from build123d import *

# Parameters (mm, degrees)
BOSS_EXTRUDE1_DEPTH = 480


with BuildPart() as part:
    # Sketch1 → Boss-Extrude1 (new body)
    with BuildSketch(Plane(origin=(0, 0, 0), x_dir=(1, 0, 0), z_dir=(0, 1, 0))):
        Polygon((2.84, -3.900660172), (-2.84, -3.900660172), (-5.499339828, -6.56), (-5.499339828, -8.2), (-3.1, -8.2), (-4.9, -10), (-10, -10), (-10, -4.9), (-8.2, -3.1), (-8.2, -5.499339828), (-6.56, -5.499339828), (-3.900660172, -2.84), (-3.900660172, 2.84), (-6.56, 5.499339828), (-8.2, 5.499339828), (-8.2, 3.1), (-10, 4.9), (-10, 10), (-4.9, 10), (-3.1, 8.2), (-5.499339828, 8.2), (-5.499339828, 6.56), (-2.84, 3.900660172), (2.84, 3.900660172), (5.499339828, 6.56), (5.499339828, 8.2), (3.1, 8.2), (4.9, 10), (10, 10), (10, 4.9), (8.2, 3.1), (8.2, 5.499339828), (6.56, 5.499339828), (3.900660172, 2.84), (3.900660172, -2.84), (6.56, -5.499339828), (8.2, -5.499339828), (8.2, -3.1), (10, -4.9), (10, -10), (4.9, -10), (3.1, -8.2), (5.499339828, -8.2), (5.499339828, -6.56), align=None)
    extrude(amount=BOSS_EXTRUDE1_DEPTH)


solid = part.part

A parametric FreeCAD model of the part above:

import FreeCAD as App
import Part
import Sketcher

doc = App.newDocument("Part")
body = doc.addObject("PartDesign::Body", "Body")

# Sketch on XZ plane
sketch1 = body.newObject("Sketcher::SketchObject", "Sketch")
sketch1.AttachmentSupport = (doc.getObject("XZ_Plane"), [""])
sketch1.MapMode = "FlatFace"
sketch1.addGeometry(Part.LineSegment(App.Vector(-2.8, 3.9, 0), App.Vector(2.8, 3.9, 0)), False)
sketch1.addGeometry(Part.LineSegment(App.Vector(2.8, 3.9, 0), App.Vector(5.5, 6.6, 0)), False)
sketch1.addGeometry(Part.LineSegment(App.Vector(5.5, 6.6, 0), App.Vector(5.5, 8.2, 0)), False)
sketch1.addGeometry(Part.LineSegment(App.Vector(5.5, 8.2, 0), App.Vector(3.1, 8.2, 0)), False)
sketch1.addGeometry(Part.LineSegment(App.Vector(3.1, 8.2, 0), App.Vector(4.9, 10, 0)), False)
sketch1.addGeometry(Part.LineSegment(App.Vector(4.9, 10, 0), App.Vector(10, 10, 0)), False)
sketch1.addGeometry(Part.LineSegment(App.Vector(10, 10, 0), App.Vector(10, 4.9, 0)), False)
sketch1.addGeometry(Part.LineSegment(App.Vector(10, 4.9, 0), App.Vector(8.2, 3.1, 0)), False)
sketch1.addGeometry(Part.LineSegment(App.Vector(8.2, 3.1, 0), App.Vector(8.2, 5.5, 0)), False)
sketch1.addGeometry(Part.LineSegment(App.Vector(8.2, 5.5, 0), App.Vector(6.6, 5.5, 0)), False)
sketch1.addGeometry(Part.LineSegment(App.Vector(6.6, 5.5, 0), App.Vector(3.9, 2.8, 0)), False)
sketch1.addGeometry(Part.LineSegment(App.Vector(3.9, 2.8, 0), App.Vector(3.9, -2.8, 0)), False)
sketch1.addGeometry(Part.LineSegment(App.Vector(3.9, -2.8, 0), App.Vector(6.6, -5.5, 0)), False)
sketch1.addGeometry(Part.LineSegment(App.Vector(6.6, -5.5, 0), App.Vector(8.2, -5.5, 0)), False)
sketch1.addGeometry(Part.LineSegment(App.Vector(8.2, -5.5, 0), App.Vector(8.2, -3.1, 0)), False)
sketch1.addGeometry(Part.LineSegment(App.Vector(8.2, -3.1, 0), App.Vector(10, -4.9, 0)), False)
sketch1.addGeometry(Part.LineSegment(App.Vector(10, -4.9, 0), App.Vector(10, -10, 0)), False)
sketch1.addGeometry(Part.LineSegment(App.Vector(10, -10, 0), App.Vector(4.9, -10, 0)), False)
sketch1.addGeometry(Part.LineSegment(App.Vector(4.9, -10, 0), App.Vector(3.1, -8.2, 0)), False)
sketch1.addGeometry(Part.LineSegment(App.Vector(3.1, -8.2, 0), App.Vector(5.5, -8.2, 0)), False)
sketch1.addGeometry(Part.LineSegment(App.Vector(5.5, -8.2, 0), App.Vector(5.5, -6.6, 0)), False)
sketch1.addGeometry(Part.LineSegment(App.Vector(5.5, -6.6, 0), App.Vector(2.8, -3.9, 0)), False)
sketch1.addGeometry(Part.LineSegment(App.Vector(2.8, -3.9, 0), App.Vector(-2.8, -3.9, 0)), False)
sketch1.addGeometry(Part.LineSegment(App.Vector(-2.8, -3.9, 0), App.Vector(-5.5, -6.6, 0)), False)
sketch1.addGeometry(Part.LineSegment(App.Vector(-5.5, -6.6, 0), App.Vector(-5.5, -8.2, 0)), False)
sketch1.addGeometry(Part.LineSegment(App.Vector(-5.5, -8.2, 0), App.Vector(-3.1, -8.2, 0)), False)
sketch1.addGeometry(Part.LineSegment(App.Vector(-3.1, -8.2, 0), App.Vector(-4.9, -10, 0)), False)
sketch1.addGeometry(Part.LineSegment(App.Vector(-4.9, -10, 0), App.Vector(-10, -10, 0)), False)
sketch1.addGeometry(Part.LineSegment(App.Vector(-10, -10, 0), App.Vector(-10, -4.9, 0)), False)
sketch1.addGeometry(Part.LineSegment(App.Vector(-10, -4.9, 0), App.Vector(-8.2, -3.1, 0)), False)
sketch1.addGeometry(Part.LineSegment(App.Vector(-8.2, -3.1, 0), App.Vector(-8.2, -5.5, 0)), False)
sketch1.addGeometry(Part.LineSegment(App.Vector(-8.2, -5.5, 0), App.Vector(-6.6, -5.5, 0)), False)
sketch1.addGeometry(Part.LineSegment(App.Vector(-6.6, -5.5, 0), App.Vector(-3.9, -2.8, 0)), False)
sketch1.addGeometry(Part.LineSegment(App.Vector(-3.9, -2.8, 0), App.Vector(-3.9, 2.8, 0)), False)
sketch1.addGeometry(Part.LineSegment(App.Vector(-3.9, 2.8, 0), App.Vector(-6.6, 5.5, 0)), False)
sketch1.addGeometry(Part.LineSegment(App.Vector(-6.6, 5.5, 0), App.Vector(-8.2, 5.5, 0)), False)
sketch1.addGeometry(Part.LineSegment(App.Vector(-8.2, 5.5, 0), App.Vector(-8.2, 3.1, 0)), False)
sketch1.addGeometry(Part.LineSegment(App.Vector(-8.2, 3.1, 0), App.Vector(-10, 4.9, 0)), False)
sketch1.addGeometry(Part.LineSegment(App.Vector(-10, 4.9, 0), App.Vector(-10, 10, 0)), False)
sketch1.addGeometry(Part.LineSegment(App.Vector(-10, 10, 0), App.Vector(-4.9, 10, 0)), False)
sketch1.addGeometry(Part.LineSegment(App.Vector(-4.9, 10, 0), App.Vector(-3.1, 8.2, 0)), False)
sketch1.addGeometry(Part.LineSegment(App.Vector(-3.1, 8.2, 0), App.Vector(-5.5, 8.2, 0)), False)
sketch1.addGeometry(Part.LineSegment(App.Vector(-5.5, 8.2, 0), App.Vector(-5.5, 6.6, 0)), False)
sketch1.addGeometry(Part.LineSegment(App.Vector(-5.5, 6.6, 0), App.Vector(-2.8, 3.9, 0)), False)
sketch1.addConstraint(Sketcher.Constraint("Coincident", 0, 2, 1, 1))
sketch1.addConstraint(Sketcher.Constraint("Coincident", 1, 2, 2, 1))
sketch1.addConstraint(Sketcher.Constraint("Coincident", 2, 2, 3, 1))
sketch1.addConstraint(Sketcher.Constraint("Coincident", 3, 2, 4, 1))
sketch1.addConstraint(Sketcher.Constraint("Coincident", 4, 2, 5, 1))
sketch1.addConstraint(Sketcher.Constraint("Coincident", 5, 2, 6, 1))
sketch1.addConstraint(Sketcher.Constraint("Coincident", 6, 2, 7, 1))
sketch1.addConstraint(Sketcher.Constraint("Coincident", 7, 2, 8, 1))
sketch1.addConstraint(Sketcher.Constraint("Coincident", 8, 2, 9, 1))
sketch1.addConstraint(Sketcher.Constraint("Coincident", 9, 2, 10, 1))
sketch1.addConstraint(Sketcher.Constraint("Coincident", 10, 2, 11, 1))
sketch1.addConstraint(Sketcher.Constraint("Coincident", 11, 2, 12, 1))
sketch1.addConstraint(Sketcher.Constraint("Coincident", 12, 2, 13, 1))
sketch1.addConstraint(Sketcher.Constraint("Coincident", 13, 2, 14, 1))
sketch1.addConstraint(Sketcher.Constraint("Coincident", 14, 2, 15, 1))
sketch1.addConstraint(Sketcher.Constraint("Coincident", 15, 2, 16, 1))
sketch1.addConstraint(Sketcher.Constraint("Coincident", 16, 2, 17, 1))
sketch1.addConstraint(Sketcher.Constraint("Coincident", 17, 2, 18, 1))
sketch1.addConstraint(Sketcher.Constraint("Coincident", 18, 2, 19, 1))
sketch1.addConstraint(Sketcher.Constraint("Coincident", 19, 2, 20, 1))
sketch1.addConstraint(Sketcher.Constraint("Coincident", 20, 2, 21, 1))
sketch1.addConstraint(Sketcher.Constraint("Coincident", 21, 2, 22, 1))
sketch1.addConstraint(Sketcher.Constraint("Coincident", 22, 2, 23, 1))
sketch1.addConstraint(Sketcher.Constraint("Coincident", 23, 2, 24, 1))
sketch1.addConstraint(Sketcher.Constraint("Coincident", 24, 2, 25, 1))
sketch1.addConstraint(Sketcher.Constraint("Coincident", 25, 2, 26, 1))
sketch1.addConstraint(Sketcher.Constraint("Coincident", 26, 2, 27, 1))
sketch1.addConstraint(Sketcher.Constraint("Coincident", 27, 2, 28, 1))
sketch1.addConstraint(Sketcher.Constraint("Coincident", 28, 2, 29, 1))
sketch1.addConstraint(Sketcher.Constraint("Coincident", 29, 2, 30, 1))
sketch1.addConstraint(Sketcher.Constraint("Coincident", 30, 2, 31, 1))
sketch1.addConstraint(Sketcher.Constraint("Coincident", 31, 2, 32, 1))
sketch1.addConstraint(Sketcher.Constraint("Coincident", 32, 2, 33, 1))
sketch1.addConstraint(Sketcher.Constraint("Coincident", 33, 2, 34, 1))
sketch1.addConstraint(Sketcher.Constraint("Coincident", 34, 2, 35, 1))
sketch1.addConstraint(Sketcher.Constraint("Coincident", 35, 2, 36, 1))
sketch1.addConstraint(Sketcher.Constraint("Coincident", 36, 2, 37, 1))
sketch1.addConstraint(Sketcher.Constraint("Coincident", 37, 2, 38, 1))
sketch1.addConstraint(Sketcher.Constraint("Coincident", 38, 2, 39, 1))
sketch1.addConstraint(Sketcher.Constraint("Coincident", 39, 2, 40, 1))
sketch1.addConstraint(Sketcher.Constraint("Coincident", 40, 2, 41, 1))
sketch1.addConstraint(Sketcher.Constraint("Coincident", 41, 2, 42, 1))
sketch1.addConstraint(Sketcher.Constraint("Coincident", 42, 2, 43, 1))
sketch1.addConstraint(Sketcher.Constraint("Coincident", 43, 2, 0, 1))
sketch1.addConstraint(Sketcher.Constraint("Horizontal", 0))
sketch1.addConstraint(Sketcher.Constraint("Vertical", 2))
sketch1.addConstraint(Sketcher.Constraint("Horizontal", 3))
sketch1.addConstraint(Sketcher.Constraint("Horizontal", 5))
sketch1.addConstraint(Sketcher.Constraint("Vertical", 6))
sketch1.addConstraint(Sketcher.Constraint("Vertical", 8))
sketch1.addConstraint(Sketcher.Constraint("Horizontal", 9))
sketch1.addConstraint(Sketcher.Constraint("Vertical", 11))
sketch1.addConstraint(Sketcher.Constraint("Horizontal", 13))
sketch1.addConstraint(Sketcher.Constraint("Vertical", 14))
sketch1.addConstraint(Sketcher.Constraint("Vertical", 16))
sketch1.addConstraint(Sketcher.Constraint("Horizontal", 17))
sketch1.addConstraint(Sketcher.Constraint("Horizontal", 19))
sketch1.addConstraint(Sketcher.Constraint("Vertical", 20))
sketch1.addConstraint(Sketcher.Constraint("Horizontal", 22))
sketch1.addConstraint(Sketcher.Constraint("Vertical", 24))
sketch1.addConstraint(Sketcher.Constraint("Horizontal", 25))
sketch1.addConstraint(Sketcher.Constraint("Horizontal", 27))
sketch1.addConstraint(Sketcher.Constraint("Vertical", 28))
sketch1.addConstraint(Sketcher.Constraint("Vertical", 30))
sketch1.addConstraint(Sketcher.Constraint("Horizontal", 31))
sketch1.addConstraint(Sketcher.Constraint("Vertical", 33))
sketch1.addConstraint(Sketcher.Constraint("Horizontal", 35))
sketch1.addConstraint(Sketcher.Constraint("Vertical", 36))
sketch1.addConstraint(Sketcher.Constraint("Vertical", 38))
sketch1.addConstraint(Sketcher.Constraint("Horizontal", 39))
sketch1.addConstraint(Sketcher.Constraint("Horizontal", 41))
sketch1.addConstraint(Sketcher.Constraint("Vertical", 42))
sketch1.addConstraint(Sketcher.Constraint("Symmetric", 0, 2, 22, 2, -1, 1))
sketch1.addConstraint(Sketcher.Constraint("Symmetric", 1, 2, 23, 2, -1, 1))
sketch1.addConstraint(Sketcher.Constraint("Symmetric", 3, 2, 25, 2, -1, 1))
sketch1.addConstraint(Sketcher.Constraint("Symmetric", 4, 2, 26, 2, -1, 1))
sketch1.addConstraint(Sketcher.Constraint("Symmetric", 6, 2, 28, 2, -1, 1))
sketch1.addConstraint(Sketcher.Constraint("Symmetric", 7, 2, 29, 2, -1, 1))
sketch1.addConstraint(Sketcher.Constraint("Symmetric", 9, 2, 31, 2, -1, 1))
sketch1.addConstraint(Sketcher.Constraint("Symmetric", 10, 2, 32, 2, -1, 1))
sketch1.addConstraint(Sketcher.Constraint("Symmetric", 12, 2, 34, 2, -1, 1))
sketch1.addConstraint(Sketcher.Constraint("Symmetric", 14, 2, 36, 2, -1, 1))
sketch1.addConstraint(Sketcher.Constraint("Symmetric", 15, 2, 37, 2, -1, 1))
sketch1.addConstraint(Sketcher.Constraint("Symmetric", 17, 2, 39, 2, -1, 1))
sketch1.addConstraint(Sketcher.Constraint("Symmetric", 18, 2, 40, 2, -1, 1))
sketch1.addConstraint(Sketcher.Constraint("Symmetric", 20, 2, 42, 2, -1, 1))
sketch1.addConstraint(Sketcher.Constraint("Symmetric", 20, 2, 23, 2, -2))
sketch1.addConstraint(Sketcher.Constraint("Symmetric", 18, 2, 25, 2, -2))
sketch1.addConstraint(Sketcher.Constraint("Symmetric", 17, 2, 26, 2, -2))
sketch1.addConstraint(Sketcher.Constraint("Symmetric", 15, 2, 28, 2, -2))
sketch1.addConstraint(Sketcher.Constraint("Symmetric", 14, 2, 29, 2, -2))
sketch1.addConstraint(Sketcher.Constraint("Symmetric", 12, 2, 31, 2, -2))
sketch1.addConstraint(Sketcher.Constraint("Parallel", 1, 4))
sketch1.addConstraint(Sketcher.Constraint("Parallel", 4, 7))
sketch1.addConstraint(Sketcher.Constraint("Parallel", 7, 10))
sketch1.addConstraint(Sketcher.Constraint("Perpendicular", 10, 12))
sketch1.addConstraint(Sketcher.Constraint("Parallel", 12, 15))
sketch1.addConstraint(Sketcher.Constraint("Parallel", 18, 21))
sketch1.addConstraint(Sketcher.Constraint("Perpendicular", 32, 34))
sketch1.addConstraint(Sketcher.Constraint("Parallel", 40, 43))
sketch1.addConstraint(Sketcher.Constraint("Equal", 35, 2))
sketch1.addConstraint(Sketcher.Constraint("Equal", 39, 6))
sketch1.addConstraint(Sketcher.Constraint("Equal", 41, 8))
sketch1.addConstraint(Sketcher.Constraint("Equal", 22, 11))
sketch1.addConstraint(Sketcher.Constraint("Equal", 4, 7))
sketch1.addConstraint(Sketcher.Constraint("Equal", 1, 10))
sketch1.addConstraint(Sketcher.Constraint("DistanceX", 5, 1, 5, 2, 5.1))
sketch1.addConstraint(Sketcher.Constraint("DistanceY", -1, 1, 4, 2, 10.0))
sketch1.addConstraint(Sketcher.Constraint("DistanceY", 15, 2, 7, 2, 8.0))
sketch1.addConstraint(Sketcher.Constraint("DistanceX", 0, 1, 0, 2, 5.68))
sketch1.addConstraint(Sketcher.Constraint("DistanceX", 9, 2, 9, 1, 1.64))
sketch1.addConstraint(Sketcher.Constraint("DistanceX", 3, 2, 3, 1, 2.39934))
pad1 = body.newObject("PartDesign::Pad", "Pad")
pad1.Profile = sketch1
pad1.Length = 480
pad1.Reversed = True

doc.recompute()
